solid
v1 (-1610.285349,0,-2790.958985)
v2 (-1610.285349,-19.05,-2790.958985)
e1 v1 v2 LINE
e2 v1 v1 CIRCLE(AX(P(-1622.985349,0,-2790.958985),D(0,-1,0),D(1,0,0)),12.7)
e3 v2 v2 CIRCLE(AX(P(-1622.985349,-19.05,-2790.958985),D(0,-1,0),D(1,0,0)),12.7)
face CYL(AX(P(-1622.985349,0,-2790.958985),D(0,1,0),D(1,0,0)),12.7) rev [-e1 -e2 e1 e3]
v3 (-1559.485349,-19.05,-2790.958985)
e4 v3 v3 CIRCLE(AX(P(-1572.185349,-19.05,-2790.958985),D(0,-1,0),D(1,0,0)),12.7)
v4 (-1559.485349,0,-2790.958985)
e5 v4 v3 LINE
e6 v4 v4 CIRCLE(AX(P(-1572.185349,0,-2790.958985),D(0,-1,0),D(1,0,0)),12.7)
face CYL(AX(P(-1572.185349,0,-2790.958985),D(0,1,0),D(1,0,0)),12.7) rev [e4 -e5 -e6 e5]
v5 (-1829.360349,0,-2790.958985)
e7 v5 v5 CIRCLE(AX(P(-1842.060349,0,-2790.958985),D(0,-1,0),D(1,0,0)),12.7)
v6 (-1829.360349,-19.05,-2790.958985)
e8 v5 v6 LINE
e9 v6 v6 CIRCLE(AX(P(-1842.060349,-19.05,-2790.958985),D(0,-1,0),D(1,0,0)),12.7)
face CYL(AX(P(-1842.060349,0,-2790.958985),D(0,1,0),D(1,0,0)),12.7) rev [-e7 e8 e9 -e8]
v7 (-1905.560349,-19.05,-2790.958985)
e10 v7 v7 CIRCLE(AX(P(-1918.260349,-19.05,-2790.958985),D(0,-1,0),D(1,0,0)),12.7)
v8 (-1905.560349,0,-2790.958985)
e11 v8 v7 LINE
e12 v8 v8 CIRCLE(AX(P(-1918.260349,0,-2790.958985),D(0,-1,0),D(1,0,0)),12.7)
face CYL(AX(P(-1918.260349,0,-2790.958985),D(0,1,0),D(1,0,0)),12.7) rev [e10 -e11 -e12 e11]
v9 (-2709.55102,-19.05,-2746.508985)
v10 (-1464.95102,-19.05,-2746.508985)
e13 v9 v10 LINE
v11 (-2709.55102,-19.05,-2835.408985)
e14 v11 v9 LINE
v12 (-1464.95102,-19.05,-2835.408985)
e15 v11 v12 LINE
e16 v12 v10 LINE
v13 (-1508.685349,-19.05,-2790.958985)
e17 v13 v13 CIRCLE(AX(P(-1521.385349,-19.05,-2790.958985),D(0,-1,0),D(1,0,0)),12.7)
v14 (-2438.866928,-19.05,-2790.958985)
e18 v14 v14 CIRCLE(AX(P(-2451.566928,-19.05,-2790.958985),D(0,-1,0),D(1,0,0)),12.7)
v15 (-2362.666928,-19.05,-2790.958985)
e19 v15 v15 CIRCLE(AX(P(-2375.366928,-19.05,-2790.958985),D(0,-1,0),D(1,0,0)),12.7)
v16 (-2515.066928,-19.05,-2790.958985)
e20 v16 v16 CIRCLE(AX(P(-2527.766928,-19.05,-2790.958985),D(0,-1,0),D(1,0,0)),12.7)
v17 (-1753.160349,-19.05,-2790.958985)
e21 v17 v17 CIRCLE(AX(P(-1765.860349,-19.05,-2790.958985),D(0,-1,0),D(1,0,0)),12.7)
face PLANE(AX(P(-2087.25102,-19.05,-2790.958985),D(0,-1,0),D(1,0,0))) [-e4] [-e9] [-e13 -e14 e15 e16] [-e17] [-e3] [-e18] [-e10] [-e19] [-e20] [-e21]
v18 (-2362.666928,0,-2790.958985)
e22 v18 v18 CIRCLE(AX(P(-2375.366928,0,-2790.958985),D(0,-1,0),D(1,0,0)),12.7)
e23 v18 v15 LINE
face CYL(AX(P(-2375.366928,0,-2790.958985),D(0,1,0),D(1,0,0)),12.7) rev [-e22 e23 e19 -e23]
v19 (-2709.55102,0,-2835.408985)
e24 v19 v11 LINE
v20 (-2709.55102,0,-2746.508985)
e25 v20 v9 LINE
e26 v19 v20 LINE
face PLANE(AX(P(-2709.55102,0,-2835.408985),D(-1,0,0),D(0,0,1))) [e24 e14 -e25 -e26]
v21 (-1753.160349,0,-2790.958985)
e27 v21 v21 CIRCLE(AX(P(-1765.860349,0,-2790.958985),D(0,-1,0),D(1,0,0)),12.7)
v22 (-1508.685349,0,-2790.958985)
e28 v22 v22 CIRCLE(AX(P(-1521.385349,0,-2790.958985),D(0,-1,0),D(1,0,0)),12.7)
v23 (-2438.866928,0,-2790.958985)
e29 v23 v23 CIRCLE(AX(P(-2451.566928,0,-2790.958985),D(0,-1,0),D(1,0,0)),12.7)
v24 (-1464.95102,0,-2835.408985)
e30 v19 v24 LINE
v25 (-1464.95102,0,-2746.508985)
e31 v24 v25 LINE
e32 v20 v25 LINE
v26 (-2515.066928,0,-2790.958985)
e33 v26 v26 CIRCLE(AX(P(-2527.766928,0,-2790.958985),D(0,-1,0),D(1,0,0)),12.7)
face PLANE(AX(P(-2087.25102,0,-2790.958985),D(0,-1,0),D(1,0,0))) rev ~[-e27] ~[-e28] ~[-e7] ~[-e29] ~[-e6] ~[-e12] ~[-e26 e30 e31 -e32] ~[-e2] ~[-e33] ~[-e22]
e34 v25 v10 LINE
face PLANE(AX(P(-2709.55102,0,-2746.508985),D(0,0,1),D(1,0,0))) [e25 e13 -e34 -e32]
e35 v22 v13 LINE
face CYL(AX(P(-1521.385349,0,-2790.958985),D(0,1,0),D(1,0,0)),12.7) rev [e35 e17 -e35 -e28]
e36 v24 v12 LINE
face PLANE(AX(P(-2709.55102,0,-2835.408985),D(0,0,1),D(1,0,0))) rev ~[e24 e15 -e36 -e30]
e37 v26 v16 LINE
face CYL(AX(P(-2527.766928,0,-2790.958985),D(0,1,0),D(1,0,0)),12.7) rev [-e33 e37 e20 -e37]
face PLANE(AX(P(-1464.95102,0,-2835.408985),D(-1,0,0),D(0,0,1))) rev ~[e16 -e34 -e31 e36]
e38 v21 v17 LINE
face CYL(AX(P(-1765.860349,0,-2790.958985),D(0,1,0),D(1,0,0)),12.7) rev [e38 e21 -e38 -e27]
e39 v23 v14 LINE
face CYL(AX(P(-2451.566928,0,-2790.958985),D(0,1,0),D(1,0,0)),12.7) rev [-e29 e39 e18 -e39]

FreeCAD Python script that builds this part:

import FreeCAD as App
import Part
import Sketcher
Q = App.Units.Quantity

doc = App.newDocument("Part")
body = doc.addObject("PartDesign::Body", "Body")

sketch1 = doc.addObject("Sketcher::SketchObject", "Sketch")
body.addObject(sketch1)
sketch1.AttachmentSupport = (doc.XZ_Plane, [""])
sketch1.MapMode = "FlatFace"
sketch1.addGeometry([
    Part.LineSegment(App.Vector(-2710, -2747, 0), App.Vector(-2710, -2835, 0)),
    Part.LineSegment(App.Vector(-2710, -2835, 0), App.Vector(-1465, -2835, 0)),
    Part.LineSegment(App.Vector(-1465, -2835, 0), App.Vector(-1465, -2747, 0)),
    Part.LineSegment(App.Vector(-1465, -2747, 0), App.Vector(-2710, -2747, 0)),
    Part.Circle(App.Vector(-2528, -2791, 0), App.Vector(0, 0, 1), 13),
    Part.Circle(App.Vector(-2452, -2791, 0), App.Vector(0, 0, 1), 13),
    Part.Circle(App.Vector(-2375, -2791, 0), App.Vector(0, 0, 1), 13),
    Part.Circle(App.Vector(-1918, -2791, 0), App.Vector(0, 0, 1), 13),
    Part.Circle(App.Vector(-1842, -2791, 0), App.Vector(0, 0, 1), 13),
    Part.Circle(App.Vector(-1766, -2791, 0), App.Vector(0, 0, 1), 13),
    Part.Circle(App.Vector(-1623, -2791, 0), App.Vector(0, 0, 1), 13),
    Part.Circle(App.Vector(-1572, -2791, 0), App.Vector(0, 0, 1), 13),
    Part.Circle(App.Vector(-1521, -2791, 0), App.Vector(0, 0, 1), 13),
], False)
sketch1.addConstraint([
    Sketcher.Constraint("Coincident", 0, 2, 1, 1),
    Sketcher.Constraint("Coincident", 1, 2, 2, 1),
    Sketcher.Constraint("Coincident", 2, 2, 3, 1),
    Sketcher.Constraint("Coincident", 3, 2, 0, 1),
    Sketcher.Constraint("Vertical", 0),
    Sketcher.Constraint("Horizontal", 1),
    Sketcher.Constraint("Vertical", 2),
    Sketcher.Constraint("Horizontal", 3),
    Sketcher.Constraint("Equal", 4, 5),
    Sketcher.Constraint("Equal", 5, 6),
    Sketcher.Constraint("Equal", 6, 7),
    Sketcher.Constraint("Equal", 7, 8),
    Sketcher.Constraint("Equal", 8, 9),
    Sketcher.Constraint("Equal", 9, 10),
    Sketcher.Constraint("Equal", 10, 11),
    Sketcher.Constraint("Equal", 11, 12),
    Sketcher.Constraint("Horizontal", 4, 3, 5, 3),
    Sketcher.Constraint("Horizontal", 5, 3, 6, 3),
    Sketcher.Constraint("Horizontal", 6, 3, 7, 3),
    Sketcher.Constraint("Horizontal", 7, 3, 8, 3),
    Sketcher.Constraint("Horizontal", 8, 3, 9, 3),
    Sketcher.Constraint("Horizontal", 9, 3, 10, 3),
    Sketcher.Constraint("Horizontal", 10, 3, 11, 3),
    Sketcher.Constraint("Horizontal", 11, 3, 12, 3),
    Sketcher.Constraint("Diameter", 4, Q("1 in")),
    Sketcher.Constraint("DistanceX", 1, 1, 1, 2, Q("49 in")),
    Sketcher.Constraint("DistanceY", 0, 2, 0, 1, Q("3.5 in")),
    Sketcher.Constraint("DistanceX", 4, 3, 5, 3, Q("3 in")),
    Sketcher.Constraint("DistanceX", 5, 3, 6, 3, Q("3 in")),
    Sketcher.Constraint("DistanceX", 7, 3, 8, 3, Q("3 in")),
    Sketcher.Constraint("DistanceX", 8, 3, 9, 3, Q("3 in")),
    Sketcher.Constraint("DistanceX", 10, 3, 11, 3, Q("2 in")),
    Sketcher.Constraint("DistanceX", 11, 3, 12, 3, Q("2 in")),
    Sketcher.Constraint("DistanceY", 0, 2, 4, 3, Q("1.75 in")),
    Sketcher.Constraint("DistanceX", 9, 3, 10, 3, Q("5.625 in")),
    Sketcher.Constraint("DistanceX", 4, 3, -1, 1, 2527.766928),
    Sketcher.Constraint("DistanceX", 7, 3, -1, 1, 1918.260349),
    Sketcher.Constraint("DistanceX", 0, 2, -1, 1, 2709.55102),
    Sketcher.Constraint("DistanceY", 4, 3, -1, 1, 2790.958985),
])
pad1 = doc.addObject("PartDesign::Pad", "Pad")
body.addObject(pad1)
pad1.Profile = sketch1
pad1.Length = Q("0.75 in")

doc.recompute()
